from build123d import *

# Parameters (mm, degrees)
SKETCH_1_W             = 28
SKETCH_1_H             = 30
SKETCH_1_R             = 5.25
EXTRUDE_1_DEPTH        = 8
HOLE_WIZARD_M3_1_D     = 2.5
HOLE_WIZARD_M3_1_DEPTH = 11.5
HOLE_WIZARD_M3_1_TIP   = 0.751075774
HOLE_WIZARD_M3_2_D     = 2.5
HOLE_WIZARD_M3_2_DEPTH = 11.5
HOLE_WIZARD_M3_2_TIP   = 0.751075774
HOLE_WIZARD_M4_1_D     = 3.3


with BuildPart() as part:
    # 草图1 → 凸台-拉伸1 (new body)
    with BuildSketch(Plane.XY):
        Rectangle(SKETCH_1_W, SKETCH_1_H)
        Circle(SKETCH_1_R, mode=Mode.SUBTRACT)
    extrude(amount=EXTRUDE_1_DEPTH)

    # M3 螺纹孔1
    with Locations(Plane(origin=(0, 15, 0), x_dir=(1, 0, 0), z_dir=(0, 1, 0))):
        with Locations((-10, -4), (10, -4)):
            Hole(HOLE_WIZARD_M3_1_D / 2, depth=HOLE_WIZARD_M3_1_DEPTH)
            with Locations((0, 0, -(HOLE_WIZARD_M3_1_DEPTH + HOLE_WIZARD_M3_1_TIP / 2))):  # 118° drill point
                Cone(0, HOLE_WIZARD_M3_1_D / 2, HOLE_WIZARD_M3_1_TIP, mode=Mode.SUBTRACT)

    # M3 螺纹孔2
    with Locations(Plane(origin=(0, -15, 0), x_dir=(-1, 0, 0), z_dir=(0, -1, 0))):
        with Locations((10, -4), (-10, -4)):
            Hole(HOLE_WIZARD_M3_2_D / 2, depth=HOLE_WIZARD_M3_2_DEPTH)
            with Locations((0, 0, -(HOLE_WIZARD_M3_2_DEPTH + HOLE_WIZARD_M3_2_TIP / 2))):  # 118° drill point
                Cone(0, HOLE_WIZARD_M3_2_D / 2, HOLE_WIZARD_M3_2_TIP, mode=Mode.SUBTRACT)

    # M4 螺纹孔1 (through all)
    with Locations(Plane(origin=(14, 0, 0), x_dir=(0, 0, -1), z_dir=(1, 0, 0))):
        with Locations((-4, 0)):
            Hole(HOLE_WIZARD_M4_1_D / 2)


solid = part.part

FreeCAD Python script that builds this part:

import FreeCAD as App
import Part
import Sketcher

doc = App.newDocument("Part")
body = doc.addObject("PartDesign::Body", "Body")

# Sketch on XY plane
sketch1 = doc.addObject("Sketcher::SketchObject", "Sketch")
body.addObject(sketch1)
sketch1.AttachmentSupport = (doc.XY_Plane, [""])
sketch1.MapMode = "FlatFace"
sketch1.addGeometry([
    Part.LineSegment(App.Vector(-14, 15, 0), App.Vector(-14, -15, 0)),  # 0
    Part.LineSegment(App.Vector(-14, -15, 0), App.Vector(14, -15, 0)),  # 1
    Part.LineSegment(App.Vector(14, -15, 0), App.Vector(14, 15, 0)),  # 2
    Part.LineSegment(App.Vector(14, 15, 0), App.Vector(-14, 15, 0)),  # 3
    Part.Circle(App.Vector(0, 0, 0), App.Vector(0, 0, 1), 5),  # 4
], False)
sketch1.addConstraint([
    Sketcher.Constraint("Coincident", 0, 2, 1, 1),
    Sketcher.Constraint("Coincident", 1, 2, 2, 1),
    Sketcher.Constraint("Coincident", 2, 2, 3, 1),
    Sketcher.Constraint("Coincident", 3, 2, 0, 1),
    Sketcher.Constraint("Vertical", 0),
    Sketcher.Constraint("Horizontal", 1),
    Sketcher.Constraint("Vertical", 2),
    Sketcher.Constraint("Horizontal", 3),
    Sketcher.Constraint("Coincident", 4, 3, -1, 1),
    Sketcher.Constraint("Symmetric", 0, 2, 2, 2, -1, 1),
    Sketcher.Constraint("Diameter", 4, 10.5),
    Sketcher.Constraint("DistanceX", 1, 1, 1, 2, 28.0),
    Sketcher.Constraint("DistanceY", 0, 2, 0, 1, 30.0),
])
pad1 = doc.addObject("PartDesign::Pad", "Pad")
body.addObject(pad1)
pad1.Profile = sketch1
pad1.Length = 8

# Sketch on XZ plane
sketch2 = doc.addObject("Sketcher::SketchObject", "Sketch001")
body.addObject(sketch2)
sketch2.AttachmentSupport = (doc.XZ_Plane, [""])
sketch2.MapMode = "FlatFace"
sketch2.AttachmentOffset = App.Placement(App.Vector(0, 0, -15), App.Rotation())
sketch2.addGeometry([
    Part.Circle(App.Vector(-10, 4, 0), App.Vector(0, 0, 1), 1.2),
    Part.Circle(App.Vector(10, 4, 0), App.Vector(0, 0, 1), 1.2),
], False)
sketch2.addConstraint([
    Sketcher.Constraint("Equal", 0, 1),
    Sketcher.Constraint("Symmetric", 0, 3, 1, 3, -2),
    Sketcher.Constraint("Diameter", 0, 2.5),
    Sketcher.Constraint("DistanceX", 0, 3, -1, 1, 10.0),
    Sketcher.Constraint("DistanceY", -1, 1, 0, 3, 4.0),
])
doc.recompute()
hole = doc.addObject("PartDesign::Hole", "Hole")
body.addObject(hole)
hole.Profile = sketch2
hole.ThreadType = "None"
hole.Diameter = 2.5
hole.DepthType = "Dimension"
hole.Depth = 11.5
hole.DrillPoint = "Angled"
hole.DrillPointAngle = 118
hole.Reversed = True

# Sketch on XZ plane
sketch3 = doc.addObject("Sketcher::SketchObject", "Sketch002")
body.addObject(sketch3)
sketch3.AttachmentSupport = (doc.XZ_Plane, [""])
sketch3.MapMode = "FlatFace"
sketch3.AttachmentOffset = App.Placement(App.Vector(0, 0, 15), App.Rotation())
sketch3.addGeometry([
    Part.Circle(App.Vector(-10, 4, 0), App.Vector(0, 0, 1), 1.2),
    Part.Circle(App.Vector(10, 4, 0), App.Vector(0, 0, 1), 1.2),
], False)
sketch3.addConstraint([
    Sketcher.Constraint("Equal", 0, 1),
    Sketcher.Constraint("Symmetric", 0, 3, 1, 3, -2),
    Sketcher.Constraint("Diameter", 0, 2.5),
    Sketcher.Constraint("DistanceX", 0, 3, -1, 1, 10.0),
    Sketcher.Constraint("DistanceY", -1, 1, 0, 3, 4.0),
])
doc.recompute()
hole2 = doc.addObject("PartDesign::Hole", "Hole001")
body.addObject(hole2)
hole2.Profile = sketch3
hole2.ThreadType = "None"
hole2.Diameter = 2.5
hole2.DepthType = "Dimension"
hole2.Depth = 11.5
hole2.DrillPoint = "Angled"
hole2.DrillPointAngle = 118

# Sketch on YZ plane
sketch4 = doc.addObject("Sketcher::SketchObject", "Sketch003")
body.addObject(sketch4)
sketch4.AttachmentSupport = (doc.YZ_Plane, [""])
sketch4.MapMode = "FlatFace"
sketch4.AttachmentOffset = App.Placement(App.Vector(0, 0, 14), App.Rotation())
sketch4.addGeometry(Part.Circle(App.Vector(0, 4, 0), App.Vector(0, 0, 1), 1.6), False)
sketch4.addConstraint([
    Sketcher.Constraint("PointOnObject", 0, 3, -2),
    Sketcher.Constraint("Diameter", 0, 3.3),
    Sketcher.Constraint("DistanceY", -1, 1, 0, 3, 4.0),
])
doc.recompute()
hole3 = doc.addObject("PartDesign::Hole", "Hole002")
body.addObject(hole3)
hole3.Profile = sketch4
hole3.ThreadType = "None"
hole3.Diameter = 3.3
hole3.DepthType = "ThroughAll"

doc.recompute()
